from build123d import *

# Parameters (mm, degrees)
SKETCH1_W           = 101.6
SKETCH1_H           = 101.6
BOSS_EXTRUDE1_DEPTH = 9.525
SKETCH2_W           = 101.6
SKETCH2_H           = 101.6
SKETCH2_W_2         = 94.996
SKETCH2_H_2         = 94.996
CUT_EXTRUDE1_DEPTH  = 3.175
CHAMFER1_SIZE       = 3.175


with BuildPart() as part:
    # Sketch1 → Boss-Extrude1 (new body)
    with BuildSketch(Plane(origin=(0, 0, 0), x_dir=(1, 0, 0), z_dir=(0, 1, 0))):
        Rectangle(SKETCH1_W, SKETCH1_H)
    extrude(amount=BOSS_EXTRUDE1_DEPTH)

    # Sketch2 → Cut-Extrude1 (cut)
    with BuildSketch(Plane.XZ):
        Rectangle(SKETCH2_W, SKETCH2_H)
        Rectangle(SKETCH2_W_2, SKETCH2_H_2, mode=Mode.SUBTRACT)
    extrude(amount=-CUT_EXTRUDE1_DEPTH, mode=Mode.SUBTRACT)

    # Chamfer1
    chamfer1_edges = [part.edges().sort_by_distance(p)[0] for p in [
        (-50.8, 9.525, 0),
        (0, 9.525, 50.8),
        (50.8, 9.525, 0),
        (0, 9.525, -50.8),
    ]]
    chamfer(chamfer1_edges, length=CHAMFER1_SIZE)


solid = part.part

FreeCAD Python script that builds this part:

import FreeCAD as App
import Part
import Sketcher
Q = App.Units.Quantity


def edges_at(feature, points):
    """Names of the edges that pass closest to the given points."""
    edges = feature.Shape.Edges
    near = lambda p: min(range(len(edges)), key=lambda i: edges[i].distToShape(Part.Vertex(*p))[0])
    return sorted({f"Edge{near(p) + 1}" for p in points})


def add_polygon(sketch, points):
    """Adds a closed chain of lines whose ends are joined by coincident constraints."""
    first, n = sketch.GeometryCount, len(points)
    for a, b in zip(points, points[1:] + points[:1]):
        sketch.addGeometry(Part.LineSegment(App.Vector(*a, 0), App.Vector(*b, 0)), False)
    for i in range(n):
        sketch.addConstraint(Sketcher.Constraint("Coincident", first + i, 2, first + (i + 1) % n, 1))

doc = App.newDocument("Part")
body = doc.addObject("PartDesign::Body", "Body")

# Sketch on XZ plane
sketch1 = body.newObject("Sketcher::SketchObject", "Sketch")
sketch1.AttachmentSupport = (doc.getObject("XZ_Plane"), [""])
sketch1.MapMode = "FlatFace"
add_polygon(sketch1, [(-51, -51), (-51, 51), (51, 51), (51, -51)])  # lines 0-3
sketch1.addConstraint([
    Sketcher.Constraint("Vertical", 0),
    Sketcher.Constraint("Horizontal", 1),
    Sketcher.Constraint("Vertical", 2),
    Sketcher.Constraint("Horizontal", 3),
    Sketcher.Constraint("Symmetric", 0, 2, 2, 2, -1, 1),
    Sketcher.Constraint("Equal", 3, 0),
    Sketcher.Constraint("DistanceX", 1, 1, 1, 2, Q("4 in")),
])
pad1 = body.newObject("PartDesign::Pad", "Pad")
pad1.Profile = sketch1
pad1.Length = Q("0.375 in")
pad1.Reversed = True

# Sketch on XZ plane
sketch2 = body.newObject("Sketcher::SketchObject", "Sketch001")
sketch2.AttachmentSupport = (doc.getObject("XZ_Plane"), [""])
sketch2.MapMode = "FlatFace"
add_polygon(sketch2, [(-51, 51), (-51, -51), (51, -51), (51, 51)])  # lines 0-3
add_polygon(sketch2, [(47, -47), (-47, -47), (-47, 47), (47, 47)])  # lines 4-7
sketch2.addConstraint([
    Sketcher.Constraint("Vertical", 0),
    Sketcher.Constraint("Horizontal", 1),
    Sketcher.Constraint("Vertical", 2),
    Sketcher.Constraint("Horizontal", 3),
    Sketcher.Constraint("Horizontal", 4),
    Sketcher.Constraint("Vertical", 5),
    Sketcher.Constraint("Horizontal", 6),
    Sketcher.Constraint("Vertical", 7),
    Sketcher.Constraint("Symmetric", 0, 2, 2, 2, -1, 1),
    Sketcher.Constraint("Symmetric", 4, 2, 6, 2, -1, 1),
    Sketcher.Constraint("Equal", 3, 0),
    Sketcher.Constraint("Equal", 6, 5),
    Sketcher.Constraint("DistanceX", 1, 1, 1, 2, Q("4 in")),
    Sketcher.Constraint("DistanceX", 4, 2, 4, 1, Q("3.74 in")),
])
pocket1 = body.newObject("PartDesign::Pocket", "Pocket")
pocket1.Profile = sketch2
pocket1.Length = Q("0.125 in")
doc.recompute()

chamfer = body.newObject("PartDesign::Chamfer", "Chamfer")
chamfer.Base = (pocket1, edges_at(pocket1, [
    (-50.8, 9.525, 0),
    (0, 9.525, 50.8),
    (50.8, 9.525, 0),
    (0, 9.525, -50.8),
]))
chamfer.Size = Q("0.125 in")

doc.recompute()
